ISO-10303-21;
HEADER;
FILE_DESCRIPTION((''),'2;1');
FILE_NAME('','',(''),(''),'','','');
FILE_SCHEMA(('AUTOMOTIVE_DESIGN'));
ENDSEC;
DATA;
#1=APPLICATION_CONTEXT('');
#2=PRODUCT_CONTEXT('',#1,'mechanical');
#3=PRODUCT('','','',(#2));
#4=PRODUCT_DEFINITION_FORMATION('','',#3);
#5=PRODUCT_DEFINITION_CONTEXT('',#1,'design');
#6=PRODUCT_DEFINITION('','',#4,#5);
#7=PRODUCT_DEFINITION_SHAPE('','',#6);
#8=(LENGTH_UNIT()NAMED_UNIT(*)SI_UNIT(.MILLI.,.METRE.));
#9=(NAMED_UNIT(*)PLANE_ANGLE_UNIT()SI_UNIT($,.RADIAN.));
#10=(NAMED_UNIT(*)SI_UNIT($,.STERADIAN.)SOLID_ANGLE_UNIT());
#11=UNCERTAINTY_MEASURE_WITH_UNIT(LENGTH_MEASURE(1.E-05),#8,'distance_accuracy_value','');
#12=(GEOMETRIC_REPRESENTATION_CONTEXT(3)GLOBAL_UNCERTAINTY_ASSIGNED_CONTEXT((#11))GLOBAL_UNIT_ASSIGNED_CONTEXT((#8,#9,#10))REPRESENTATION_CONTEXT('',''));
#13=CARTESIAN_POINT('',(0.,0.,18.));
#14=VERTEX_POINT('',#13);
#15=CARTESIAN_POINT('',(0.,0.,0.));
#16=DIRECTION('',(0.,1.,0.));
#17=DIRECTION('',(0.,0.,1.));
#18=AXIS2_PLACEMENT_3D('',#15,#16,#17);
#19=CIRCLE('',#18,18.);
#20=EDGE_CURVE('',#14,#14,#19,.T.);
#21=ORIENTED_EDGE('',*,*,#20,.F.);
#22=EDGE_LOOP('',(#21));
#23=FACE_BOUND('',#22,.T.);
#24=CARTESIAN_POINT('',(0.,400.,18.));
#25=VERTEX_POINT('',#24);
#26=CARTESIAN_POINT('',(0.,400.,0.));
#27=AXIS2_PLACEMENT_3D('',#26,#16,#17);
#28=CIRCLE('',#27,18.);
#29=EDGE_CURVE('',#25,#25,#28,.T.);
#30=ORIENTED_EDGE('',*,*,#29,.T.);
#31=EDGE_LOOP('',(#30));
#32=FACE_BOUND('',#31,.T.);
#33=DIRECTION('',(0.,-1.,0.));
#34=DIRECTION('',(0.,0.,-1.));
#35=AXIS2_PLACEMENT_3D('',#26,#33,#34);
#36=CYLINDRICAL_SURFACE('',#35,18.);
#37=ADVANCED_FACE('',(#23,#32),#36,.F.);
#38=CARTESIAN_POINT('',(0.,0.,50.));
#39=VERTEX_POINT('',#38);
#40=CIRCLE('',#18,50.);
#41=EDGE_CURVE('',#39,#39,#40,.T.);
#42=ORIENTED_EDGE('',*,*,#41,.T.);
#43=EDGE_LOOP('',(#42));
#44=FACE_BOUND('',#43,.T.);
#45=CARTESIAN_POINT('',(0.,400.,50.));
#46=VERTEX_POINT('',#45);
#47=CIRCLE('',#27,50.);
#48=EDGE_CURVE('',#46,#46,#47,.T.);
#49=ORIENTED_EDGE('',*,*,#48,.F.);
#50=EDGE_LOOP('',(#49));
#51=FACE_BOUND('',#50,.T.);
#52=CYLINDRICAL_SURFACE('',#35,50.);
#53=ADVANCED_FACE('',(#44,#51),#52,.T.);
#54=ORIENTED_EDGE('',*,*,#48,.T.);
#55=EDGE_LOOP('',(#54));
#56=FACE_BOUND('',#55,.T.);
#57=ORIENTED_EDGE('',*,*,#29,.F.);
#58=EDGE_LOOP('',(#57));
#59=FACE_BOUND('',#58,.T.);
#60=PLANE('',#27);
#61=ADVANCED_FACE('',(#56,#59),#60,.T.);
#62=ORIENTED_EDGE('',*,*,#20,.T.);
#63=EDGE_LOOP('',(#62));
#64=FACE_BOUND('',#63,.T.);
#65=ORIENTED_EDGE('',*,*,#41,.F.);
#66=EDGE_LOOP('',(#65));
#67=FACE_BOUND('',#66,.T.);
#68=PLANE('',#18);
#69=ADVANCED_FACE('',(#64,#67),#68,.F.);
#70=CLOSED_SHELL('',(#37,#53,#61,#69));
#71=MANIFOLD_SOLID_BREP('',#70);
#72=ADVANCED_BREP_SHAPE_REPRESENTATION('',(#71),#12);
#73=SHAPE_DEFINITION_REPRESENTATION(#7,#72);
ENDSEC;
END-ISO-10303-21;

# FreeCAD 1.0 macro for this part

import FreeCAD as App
import Part
import Sketcher

V = App.Vector
Q = App.Units.Quantity

doc = App.newDocument("Part")
body = doc.addObject("PartDesign::Body", "Body")

sketch1 = body.newObject("Sketcher::SketchObject", "Sketch")
sketch1.AttachmentSupport = (doc.getObject("XZ_Plane"), [""])
sketch1.MapMode = "FlatFace"
sketch1.addGeometry([
    Part.Circle(V(0, 0, 0), V(0, 0, 1), 50),
    Part.Circle(V(0, 0, 0), V(0, 0, 1), 18),
], False)
sketch1.addConstraint([
    Sketcher.Constraint("Coincident", 0, 3, -1, 1),
    Sketcher.Constraint("Coincident", 1, 3, -1, 1),
    Sketcher.Constraint("Diameter", 0, Q("100 mm")),
    Sketcher.Constraint("Diameter", 1, Q("36 mm")),
])
pad1 = body.newObject("PartDesign::Pad", "Pad")
pad1.Profile = sketch1
pad1.Length = 400
pad1.Reversed = True

doc.recompute()
